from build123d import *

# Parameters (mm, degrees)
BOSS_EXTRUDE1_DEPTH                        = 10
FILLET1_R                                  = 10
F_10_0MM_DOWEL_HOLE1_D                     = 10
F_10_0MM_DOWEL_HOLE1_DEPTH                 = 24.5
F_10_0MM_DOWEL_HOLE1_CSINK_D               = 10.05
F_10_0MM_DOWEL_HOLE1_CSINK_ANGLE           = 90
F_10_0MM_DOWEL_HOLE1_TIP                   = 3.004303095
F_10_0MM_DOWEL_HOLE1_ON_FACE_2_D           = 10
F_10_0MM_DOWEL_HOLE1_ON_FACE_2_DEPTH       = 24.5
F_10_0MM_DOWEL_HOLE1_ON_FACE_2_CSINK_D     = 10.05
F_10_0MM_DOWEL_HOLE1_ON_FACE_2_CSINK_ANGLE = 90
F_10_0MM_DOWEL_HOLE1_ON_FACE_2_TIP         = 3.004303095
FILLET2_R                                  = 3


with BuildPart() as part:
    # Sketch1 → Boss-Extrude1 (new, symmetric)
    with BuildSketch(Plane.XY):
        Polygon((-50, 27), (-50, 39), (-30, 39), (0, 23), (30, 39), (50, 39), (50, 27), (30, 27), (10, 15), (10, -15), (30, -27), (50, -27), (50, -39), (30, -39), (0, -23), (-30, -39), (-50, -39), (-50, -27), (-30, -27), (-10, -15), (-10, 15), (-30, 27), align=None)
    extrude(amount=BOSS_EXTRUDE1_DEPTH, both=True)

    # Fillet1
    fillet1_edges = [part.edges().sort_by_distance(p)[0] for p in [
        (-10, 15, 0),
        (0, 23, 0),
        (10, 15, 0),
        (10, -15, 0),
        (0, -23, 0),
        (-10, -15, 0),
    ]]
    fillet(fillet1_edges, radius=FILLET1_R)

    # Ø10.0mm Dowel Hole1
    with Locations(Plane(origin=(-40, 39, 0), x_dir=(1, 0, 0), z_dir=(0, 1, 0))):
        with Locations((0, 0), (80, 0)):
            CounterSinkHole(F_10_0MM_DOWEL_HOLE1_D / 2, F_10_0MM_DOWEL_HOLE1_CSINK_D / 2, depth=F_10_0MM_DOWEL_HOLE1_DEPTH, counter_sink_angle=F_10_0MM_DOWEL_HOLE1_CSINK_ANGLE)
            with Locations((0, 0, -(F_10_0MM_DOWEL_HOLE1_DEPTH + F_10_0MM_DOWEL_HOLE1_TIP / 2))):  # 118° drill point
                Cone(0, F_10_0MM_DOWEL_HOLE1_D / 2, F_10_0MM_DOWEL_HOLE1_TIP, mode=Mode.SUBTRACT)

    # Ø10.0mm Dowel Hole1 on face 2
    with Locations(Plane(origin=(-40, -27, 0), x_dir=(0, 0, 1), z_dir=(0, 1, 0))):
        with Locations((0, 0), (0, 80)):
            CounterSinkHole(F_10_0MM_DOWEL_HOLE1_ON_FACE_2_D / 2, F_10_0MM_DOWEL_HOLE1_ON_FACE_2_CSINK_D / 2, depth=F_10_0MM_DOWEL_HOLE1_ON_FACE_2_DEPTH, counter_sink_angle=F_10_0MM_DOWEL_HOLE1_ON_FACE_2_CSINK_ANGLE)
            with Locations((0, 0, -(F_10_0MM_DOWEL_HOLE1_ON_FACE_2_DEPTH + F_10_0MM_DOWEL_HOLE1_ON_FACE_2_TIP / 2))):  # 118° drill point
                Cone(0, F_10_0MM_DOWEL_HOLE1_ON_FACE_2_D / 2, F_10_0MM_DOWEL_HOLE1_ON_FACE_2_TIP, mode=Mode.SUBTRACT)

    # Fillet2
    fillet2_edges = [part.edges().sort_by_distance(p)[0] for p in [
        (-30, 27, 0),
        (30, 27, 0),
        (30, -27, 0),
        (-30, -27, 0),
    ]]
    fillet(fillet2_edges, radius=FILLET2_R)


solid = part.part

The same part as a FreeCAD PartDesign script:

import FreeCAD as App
import Part
import Sketcher

V = App.Vector
Q = App.Units.Quantity


def edges_at(feature, points):
    """Names of the edges that pass closest to the given points."""
    edges = feature.Shape.Edges
    near = lambda p: min(range(len(edges)), key=lambda i: edges[i].distToShape(Part.Vertex(*p))[0])
    return sorted({f"Edge{near(p) + 1}" for p in points})


def add_polygon(sketch, points):
    """Adds a closed chain of lines whose ends are joined by coincident constraints."""
    first, n = sketch.GeometryCount, len(points)
    for a, b in zip(points, points[1:] + points[:1]):
        sketch.addGeometry(Part.LineSegment(App.Vector(*a, 0), App.Vector(*b, 0)), False)
    for i in range(n):
        sketch.addConstraint(Sketcher.Constraint("Coincident", first + i, 2, first + (i + 1) % n, 1))

doc = App.newDocument("Part")
body = doc.addObject("PartDesign::Body", "Body")

# Sketch on XY plane
sketch1 = body.newObject("Sketcher::SketchObject", "Sketch")
sketch1.AttachmentSupport = (doc.getObject("XY_Plane"), [""])
sketch1.MapMode = "FlatFace"
add_polygon(sketch1, [(-50, 39), (-50, 27), (-30, 27), (-10, 15), (-10, -15), (-30, -27), (-50, -27), (-50, -39), (-30, -39), (0, -23), (30, -39), (50, -39), (50, -27), (30, -27), (10, -15), (10, 15), (30, 27), (50, 27), (50, 39), (30, 39), (0, 23), (-30, 39)])  # lines 0-21
sketch1.addConstraint(Sketcher.Constraint("Vertical", 0))
sketch1.addConstraint(Sketcher.Constraint("Horizontal", 1))
sketch1.addConstraint(Sketcher.Constraint("Vertical", 3))
sketch1.addConstraint(Sketcher.Constraint("Horizontal", 5))
sketch1.addConstraint(Sketcher.Constraint("Vertical", 6))
sketch1.addConstraint(Sketcher.Constraint("Horizontal", 7))
sketch1.addConstraint(Sketcher.Constraint("Horizontal", 10))
sketch1.addConstraint(Sketcher.Constraint("Vertical", 11))
sketch1.addConstraint(Sketcher.Constraint("Horizontal", 12))
sketch1.addConstraint(Sketcher.Constraint("Vertical", 14))
sketch1.addConstraint(Sketcher.Constraint("Horizontal", 16))
sketch1.addConstraint(Sketcher.Constraint("Vertical", 17))
sketch1.addConstraint(Sketcher.Constraint("Horizontal", 18))
sketch1.addConstraint(Sketcher.Constraint("Horizontal", 21))
sketch1.addConstraint(Sketcher.Constraint("Symmetric", 0, 2, 11, 2, -1, 1))
sketch1.addConstraint(Sketcher.Constraint("Symmetric", 2, 2, 13, 2, -1, 1))
sketch1.addConstraint(Sketcher.Constraint("Symmetric", 4, 2, 15, 2, -1, 1))
sketch1.addConstraint(Sketcher.Constraint("Symmetric", 6, 2, 17, 2, -1, 1))
sketch1.addConstraint(Sketcher.Constraint("Symmetric", 8, 2, 19, 2, -1, 1))
sketch1.addConstraint(Sketcher.Constraint("Symmetric", 9, 2, 20, 2, -1, 1))
sketch1.addConstraint(Sketcher.Constraint("Symmetric", 7, 2, 9, 2, -2))
sketch1.addConstraint(Sketcher.Constraint("Symmetric", 5, 2, 11, 2, -2))
sketch1.addConstraint(Sketcher.Constraint("PointOnObject", 8, 2, -2))
sketch1.addConstraint(Sketcher.Constraint("Parallel", 2, 13))
sketch1.addConstraint(Sketcher.Constraint("Parallel", 4, 15))
sketch1.addConstraint(Sketcher.Constraint("Parallel", 8, 19))
sketch1.addConstraint(Sketcher.Constraint("Horizontal", 3, 2, 13, 2))
sketch1.addConstraint(Sketcher.Constraint("Vertical", 1, 2, 4, 2))
sketch1.addConstraint(Sketcher.Constraint("Vertical", 4, 2, 7, 2))
sketch1.addConstraint(Sketcher.Constraint("DistanceX", 1, 1, 1, 2, Q("20 mm")))
sketch1.addConstraint(Sketcher.Constraint("DistanceY", 0, 2, 0, 1, Q("12 mm")))
sketch1.addConstraint(Sketcher.Constraint("DistanceY", 3, 2, 3, 1, Q("30 mm")))
sketch1.addConstraint(Sketcher.Constraint("Distance", 8, Q("34 mm")))
sketch1.addConstraint(Sketcher.Constraint("DistanceX", 0, 2, -1, 1, Q("50 mm")))
sketch1.addConstraint(Sketcher.Constraint("DistanceY", -1, 1, 0, 2, Q("27 mm")))
sketch1.addConstraint(Sketcher.Constraint("DistanceX", 2, 2, -1, 1, Q("10 mm")))
pad1 = body.newObject("PartDesign::Pad", "Pad")
pad1.Profile = sketch1
pad1.Length = 20
pad1.Midplane = True
doc.recompute()

fillet = body.newObject("PartDesign::Fillet", "Fillet")
fillet.Base = (pad1, edges_at(pad1, [
    (-10, 15, 0),
    (0, 23, 0),
    (10, 15, 0),
    (10, -15, 0),
    (0, -23, 0),
    (-10, -15, 0),
]))
fillet.Radius = 10

# Sketch on XZ plane
sketch2 = body.newObject("Sketcher::SketchObject", "Sketch001")
sketch2.AttachmentSupport = (doc.getObject("XZ_Plane"), [""])
sketch2.MapMode = "FlatFace"
sketch2.AttachmentOffset = App.Placement(V(0, 0, -39), App.Rotation())
sketch2.addGeometry(Part.Circle(V(-40, 0, 0), V(0, 0, 1), 5), False)
sketch2.addGeometry(Part.Circle(V(40, 0, 0), V(0, 0, 1), 5), False)
sketch2.addConstraint(Sketcher.Constraint("Equal", 0, 1))
sketch2.addConstraint(Sketcher.Constraint("Symmetric", 0, 3, 1, 3, -1, 1))
sketch2.addConstraint(Sketcher.Constraint("PointOnObject", 0, 3, -1))
sketch2.addConstraint(Sketcher.Constraint("Diameter", 0, Q("10 mm")))
sketch2.addConstraint(Sketcher.Constraint("DistanceX", 0, 3, -1, 1, Q("40 mm")))
doc.recompute()
hole = body.newObject("PartDesign::Hole", "Hole")
hole.Profile = sketch2
hole.ThreadType = "None"
hole.Diameter = 10
hole.DepthType = "Dimension"
hole.Depth = 24.5
hole.DrillPoint = "Angled"
hole.DrillPointAngle = 118
hole.HoleCutType = "Countersink"
hole.HoleCutDiameter = 10.05
hole.HoleCutCountersinkAngle = 90
hole.Reversed = True

# Sketch on XZ plane
sketch3 = body.newObject("Sketcher::SketchObject", "Sketch002")
sketch3.AttachmentSupport = (doc.getObject("XZ_Plane"), [""])
sketch3.MapMode = "FlatFace"
sketch3.AttachmentOffset = App.Placement(V(0, 0, 27), App.Rotation())
sketch3.addGeometry(Part.Circle(V(-40, 0, 0), V(0, 0, 1), 5), False)
sketch3.addGeometry(Part.Circle(V(40, 0, 0), V(0, 0, 1), 5), False)
sketch3.addConstraint(Sketcher.Constraint("Equal", 0, 1))
sketch3.addConstraint(Sketcher.Constraint("Symmetric", 0, 3, 1, 3, -1, 1))
sketch3.addConstraint(Sketcher.Constraint("PointOnObject", 0, 3, -1))
sketch3.addConstraint(Sketcher.Constraint("Diameter", 0, Q("10 mm")))
sketch3.addConstraint(Sketcher.Constraint("DistanceX", 0, 3, -1, 1, Q("40 mm")))
doc.recompute()
hole2 = body.newObject("PartDesign::Hole", "Hole001")
hole2.Profile = sketch3
hole2.ThreadType = "None"
hole2.Diameter = 10
hole2.DepthType = "Dimension"
hole2.Depth = 24.5
hole2.DrillPoint = "Angled"
hole2.DrillPointAngle = 118
hole2.HoleCutType = "Countersink"
hole2.HoleCutDiameter = 10.05
hole2.HoleCutCountersinkAngle = 90
hole2.Reversed = True
doc.recompute()

fillet2 = body.newObject("PartDesign::Fillet", "Fillet001")
fillet2.Base = (hole2, edges_at(hole2, [
    (-30, 27, 0),
    (30, 27, 0),
    (30, -27, 0),
    (-30, -27, 0),
]))
fillet2.Radius = 3

doc.recompute()
